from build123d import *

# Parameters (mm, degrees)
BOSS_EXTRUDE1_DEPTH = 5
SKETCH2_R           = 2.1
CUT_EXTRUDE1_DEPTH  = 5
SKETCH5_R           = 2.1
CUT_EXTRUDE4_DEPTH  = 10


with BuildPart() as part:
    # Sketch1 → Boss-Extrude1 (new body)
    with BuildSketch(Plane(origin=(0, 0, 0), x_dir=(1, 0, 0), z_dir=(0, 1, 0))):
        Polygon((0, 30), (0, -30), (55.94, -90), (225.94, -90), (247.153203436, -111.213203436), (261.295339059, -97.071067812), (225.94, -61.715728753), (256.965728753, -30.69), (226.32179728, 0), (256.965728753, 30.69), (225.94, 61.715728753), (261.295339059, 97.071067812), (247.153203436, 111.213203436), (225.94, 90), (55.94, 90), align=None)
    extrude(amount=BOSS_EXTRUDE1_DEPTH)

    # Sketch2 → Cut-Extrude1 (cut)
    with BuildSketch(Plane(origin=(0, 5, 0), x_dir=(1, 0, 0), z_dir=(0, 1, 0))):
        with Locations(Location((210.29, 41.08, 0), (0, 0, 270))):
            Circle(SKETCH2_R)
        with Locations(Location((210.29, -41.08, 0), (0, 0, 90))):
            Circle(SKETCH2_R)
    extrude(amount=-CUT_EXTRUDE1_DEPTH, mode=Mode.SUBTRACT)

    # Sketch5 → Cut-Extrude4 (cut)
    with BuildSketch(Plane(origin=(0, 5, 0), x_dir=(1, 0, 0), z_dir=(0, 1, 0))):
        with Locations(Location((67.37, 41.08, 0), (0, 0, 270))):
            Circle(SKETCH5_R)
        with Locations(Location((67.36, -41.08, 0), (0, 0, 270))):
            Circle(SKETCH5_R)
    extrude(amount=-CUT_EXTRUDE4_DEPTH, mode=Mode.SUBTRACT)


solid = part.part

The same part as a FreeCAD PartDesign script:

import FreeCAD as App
import Part
import Sketcher
Q = App.Units.Quantity

doc = App.newDocument("Part")
body = doc.addObject("PartDesign::Body", "Body")

sketch1 = body.newObject("Sketcher::SketchObject", "Sketch")
sketch1.AttachmentSupport = (doc.getObject("XZ_Plane"), [""])
sketch1.MapMode = "FlatFace"
sketch1.addGeometry([
    Part.LineSegment(App.Vector(0, -30, 0), App.Vector(0, 30, 0)),
    Part.LineSegment(App.Vector(0, 30, 0), App.Vector(56, 90, 0)),
    Part.LineSegment(App.Vector(56, 90, 0), App.Vector(226, 90, 0)),
    Part.LineSegment(App.Vector(226, 90, 0), App.Vector(247, 111, 0)),
    Part.LineSegment(App.Vector(247, 111, 0), App.Vector(261, 97, 0)),
    Part.LineSegment(App.Vector(261, 97, 0), App.Vector(226, 62, 0)),
    Part.LineSegment(App.Vector(226, 62, 0), App.Vector(257, 31, 0)),
    Part.LineSegment(App.Vector(257, 31, 0), App.Vector(226, 0, 0)),
    Part.LineSegment(App.Vector(226, 0, 0), App.Vector(257, -31, 0)),
    Part.LineSegment(App.Vector(257, -31, 0), App.Vector(226, -62, 0)),
    Part.LineSegment(App.Vector(226, -62, 0), App.Vector(261, -97, 0)),
    Part.LineSegment(App.Vector(261, -97, 0), App.Vector(247, -111, 0)),
    Part.LineSegment(App.Vector(247, -111, 0), App.Vector(226, -90, 0)),
    Part.LineSegment(App.Vector(226, -90, 0), App.Vector(56, -90, 0)),
    Part.LineSegment(App.Vector(56, -90, 0), App.Vector(0, -30, 0)),
], False)
sketch1.addConstraint([
    Sketcher.Constraint("Coincident", 0, 2, 1, 1),
    Sketcher.Constraint("Coincident", 1, 2, 2, 1),
    Sketcher.Constraint("Coincident", 2, 2, 3, 1),
    Sketcher.Constraint("Coincident", 3, 2, 4, 1),
    Sketcher.Constraint("Coincident", 4, 2, 5, 1),
    Sketcher.Constraint("Coincident", 5, 2, 6, 1),
    Sketcher.Constraint("Coincident", 6, 2, 7, 1),
    Sketcher.Constraint("Coincident", 7, 2, 8, 1),
    Sketcher.Constraint("Coincident", 8, 2, 9, 1),
    Sketcher.Constraint("Coincident", 9, 2, 10, 1),
    Sketcher.Constraint("Coincident", 10, 2, 11, 1),
    Sketcher.Constraint("Coincident", 11, 2, 12, 1),
    Sketcher.Constraint("Coincident", 12, 2, 13, 1),
    Sketcher.Constraint("Coincident", 13, 2, 14, 1),
    Sketcher.Constraint("Coincident", 14, 2, 0, 1),
    Sketcher.Constraint("Vertical", 0),
    Sketcher.Constraint("Horizontal", 2),
    Sketcher.Constraint("Horizontal", 13),
    Sketcher.Constraint("Symmetric", 0, 2, 14, 2, -1, 1),
    Sketcher.Constraint("Symmetric", 6, 2, 8, 2, -1),
    Sketcher.Constraint("Symmetric", 5, 2, 9, 2, -1),
    Sketcher.Constraint("Symmetric", 4, 2, 10, 2, -1),
    Sketcher.Constraint("Symmetric", 3, 2, 11, 2, -1),
    Sketcher.Constraint("Symmetric", 2, 2, 12, 2, -1),
    Sketcher.Constraint("PointOnObject", 7, 2, -1),
    Sketcher.Constraint("Perpendicular", 3, 4),
    Sketcher.Constraint("Perpendicular", 4, 5),
    Sketcher.Constraint("Perpendicular", 5, 6),
    Sketcher.Constraint("Perpendicular", 6, 9),
    Sketcher.Constraint("Vertical", 2, 2, 5, 2),
    Sketcher.Constraint("Vertical", 1, 2, 13, 2),
    Sketcher.Constraint("DistanceX", 2, 1, 2, 2, Q("170 mm")),
    Sketcher.Constraint("DistanceY", 0, 1, 0, 2, Q("60 mm")),
    Sketcher.Constraint("Distance", 3, Q("30 mm")),
    Sketcher.Constraint("Distance", 4, Q("20 mm")),
    Sketcher.Constraint("DistanceY", -1, 1, 1, 2, Q("90 mm")),
    Sketcher.Constraint("DistanceX", -1, 1, 1, 2, Q("55.94 mm")),
    Sketcher.Constraint("DistanceY", -1, 1, 6, 2, Q("30.69 mm")),
    Sketcher.Constraint("Distance", 7, Q("43.369651 mm")),
])
pad1 = body.newObject("PartDesign::Pad", "Pad")
pad1.Profile = sketch1
pad1.Length = 5
pad1.Reversed = True

sketch2 = body.newObject("Sketcher::SketchObject", "Sketch001")
sketch2.AttachmentSupport = (doc.getObject("XZ_Plane"), [""])
sketch2.MapMode = "FlatFace"
sketch2.AttachmentOffset = App.Placement(App.Vector(0, 0, -5), App.Rotation())
sketch2.addGeometry([
    Part.Circle(App.Vector(210.3, -41.1, 0), App.Vector(0, 0, 1), 2.1),
    Part.Circle(App.Vector(210.3, 41.1, 0), App.Vector(0, 0, 1), 2.1),
], False)
sketch2.addConstraint([
    Sketcher.Constraint("Equal", 0, 1),
    Sketcher.Constraint("Symmetric", 0, 3, 1, 3, -1),
    Sketcher.Constraint("Diameter", 0, Q("4.2 mm")),
    Sketcher.Constraint("DistanceX", -1, 1, 0, 3, Q("210.29 mm")),
    Sketcher.Constraint("DistanceY", 0, 3, -1, 1, Q("41.08 mm")),
])
pocket1 = body.newObject("PartDesign::Pocket", "Pocket")
pocket1.Profile = sketch2
pocket1.Length = 5
pocket1.Reversed = True

sketch3 = body.newObject("Sketcher::SketchObject", "Sketch002")
sketch3.AttachmentSupport = (doc.getObject("XZ_Plane"), [""])
sketch3.MapMode = "FlatFace"
sketch3.AttachmentOffset = App.Placement(App.Vector(0, 0, -5), App.Rotation())
sketch3.addGeometry([
    Part.Circle(App.Vector(67.4, -41.1, 0), App.Vector(0, 0, 1), 2.1),
    Part.Circle(App.Vector(67.4, 41.1, 0), App.Vector(0, 0, 1), 2.1),
], False)
sketch3.addConstraint([
    Sketcher.Constraint("Equal", 0, 1),
    Sketcher.Constraint("Diameter", 0, Q("4.2 mm")),
    Sketcher.Constraint("DistanceX", -1, 1, 0, 3, Q("67.37 mm")),
    Sketcher.Constraint("DistanceY", 0, 3, -1, 1, Q("41.08 mm")),
    Sketcher.Constraint("DistanceX", -1, 1, 1, 3, Q("67.36 mm")),
    Sketcher.Constraint("DistanceY", -1, 1, 1, 3, Q("41.08 mm")),
])
pocket2 = body.newObject("PartDesign::Pocket", "Pocket001")
pocket2.Profile = sketch3
pocket2.Length = 10
pocket2.Reversed = True

doc.recompute()
